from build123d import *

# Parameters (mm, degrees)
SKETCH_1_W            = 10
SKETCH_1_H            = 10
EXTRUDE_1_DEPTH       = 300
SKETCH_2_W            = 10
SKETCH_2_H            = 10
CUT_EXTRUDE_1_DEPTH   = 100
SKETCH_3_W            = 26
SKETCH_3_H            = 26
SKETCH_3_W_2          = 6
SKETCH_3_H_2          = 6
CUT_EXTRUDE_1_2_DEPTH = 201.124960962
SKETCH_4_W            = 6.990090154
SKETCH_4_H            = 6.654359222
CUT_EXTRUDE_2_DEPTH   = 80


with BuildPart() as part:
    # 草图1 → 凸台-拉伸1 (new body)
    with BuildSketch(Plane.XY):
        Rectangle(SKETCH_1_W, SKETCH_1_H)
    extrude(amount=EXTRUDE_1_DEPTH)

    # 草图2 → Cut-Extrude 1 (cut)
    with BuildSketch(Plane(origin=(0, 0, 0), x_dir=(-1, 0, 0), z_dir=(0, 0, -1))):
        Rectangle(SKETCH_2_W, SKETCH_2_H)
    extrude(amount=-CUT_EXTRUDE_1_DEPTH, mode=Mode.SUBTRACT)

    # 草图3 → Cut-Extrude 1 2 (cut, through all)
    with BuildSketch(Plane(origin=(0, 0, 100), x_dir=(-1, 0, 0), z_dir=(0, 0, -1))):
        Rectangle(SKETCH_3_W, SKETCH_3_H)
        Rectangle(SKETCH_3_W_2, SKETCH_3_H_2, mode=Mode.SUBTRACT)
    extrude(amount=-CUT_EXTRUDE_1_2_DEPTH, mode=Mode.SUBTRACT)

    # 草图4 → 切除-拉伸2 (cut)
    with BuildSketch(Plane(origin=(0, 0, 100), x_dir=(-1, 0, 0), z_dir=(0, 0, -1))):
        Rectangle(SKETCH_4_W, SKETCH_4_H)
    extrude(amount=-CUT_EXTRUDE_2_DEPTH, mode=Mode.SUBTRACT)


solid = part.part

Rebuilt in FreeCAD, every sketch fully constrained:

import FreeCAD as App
import Part
import Sketcher

V = App.Vector

doc = App.newDocument("Part")
body = doc.addObject("PartDesign::Body", "Body")

# Sketch on XY plane
sketch1 = body.newObject("Sketcher::SketchObject", "Sketch")
sketch1.AttachmentSupport = (doc.getObject("XY_Plane"), [""])
sketch1.MapMode = "FlatFace"
sketch1.addGeometry([
    Part.LineSegment(V(-5, 5, 0), V(-5, -5, 0)),
    Part.LineSegment(V(-5, -5, 0), V(5, -5, 0)),
    Part.LineSegment(V(5, -5, 0), V(5, 5, 0)),
    Part.LineSegment(V(5, 5, 0), V(-5, 5, 0)),
], False)
sketch1.addConstraint([
    Sketcher.Constraint("Coincident", 0, 2, 1, 1),
    Sketcher.Constraint("Coincident", 1, 2, 2, 1),
    Sketcher.Constraint("Coincident", 2, 2, 3, 1),
    Sketcher.Constraint("Coincident", 3, 2, 0, 1),
    Sketcher.Constraint("Vertical", 0),
    Sketcher.Constraint("Horizontal", 1),
    Sketcher.Constraint("Vertical", 2),
    Sketcher.Constraint("Horizontal", 3),
    Sketcher.Constraint("Symmetric", 0, 2, 2, 2, -1, 1),
    Sketcher.Constraint("Equal", 3, 0),
    Sketcher.Constraint("DistanceX", 1, 1, 1, 2, 10.0),
])
pad1 = body.newObject("PartDesign::Pad", "Pad")
pad1.Profile = sketch1
pad1.Length = 300

# Sketch on XY plane
sketch2 = body.newObject("Sketcher::SketchObject", "Sketch001")
sketch2.AttachmentSupport = (doc.getObject("XY_Plane"), [""])
sketch2.MapMode = "FlatFace"
sketch2.addGeometry([
    Part.LineSegment(V(5, 5, 0), V(5, -5, 0)),
    Part.LineSegment(V(5, -5, 0), V(-5, -5, 0)),
    Part.LineSegment(V(-5, -5, 0), V(-5, 5, 0)),
    Part.LineSegment(V(-5, 5, 0), V(5, 5, 0)),
], False)
sketch2.addConstraint([
    Sketcher.Constraint("Coincident", 0, 2, 1, 1),
    Sketcher.Constraint("Coincident", 1, 2, 2, 1),
    Sketcher.Constraint("Coincident", 2, 2, 3, 1),
    Sketcher.Constraint("Coincident", 3, 2, 0, 1),
    Sketcher.Constraint("Vertical", 0),
    Sketcher.Constraint("Horizontal", 1),
    Sketcher.Constraint("Vertical", 2),
    Sketcher.Constraint("Horizontal", 3),
    Sketcher.Constraint("Symmetric", 0, 2, 2, 2, -1, 1),
    Sketcher.Constraint("Equal", 3, 0),
    Sketcher.Constraint("DistanceX", 1, 2, 1, 1, 10.0),
])
pocket1 = body.newObject("PartDesign::Pocket", "Pocket")
pocket1.Profile = sketch2
pocket1.Length = 100
pocket1.Reversed = True

# Sketch on XY plane
sketch3 = body.newObject("Sketcher::SketchObject", "Sketch002")
sketch3.AttachmentSupport = (doc.getObject("XY_Plane"), [""])
sketch3.MapMode = "FlatFace"
sketch3.AttachmentOffset = App.Placement(V(0, 0, 100), App.Rotation())
sketch3.addGeometry([
    Part.LineSegment(V(13, 13, 0), V(13, -13, 0)),  # 0
    Part.LineSegment(V(13, -13, 0), V(-13, -13, 0)),  # 1
    Part.LineSegment(V(-13, -13, 0), V(-13, 13, 0)),  # 2
    Part.LineSegment(V(-13, 13, 0), V(13, 13, 0)),  # 3
    Part.LineSegment(V(-3, -3, 0), V(3, -3, 0)),  # 4
    Part.LineSegment(V(3, -3, 0), V(3, 3, 0)),  # 5
    Part.LineSegment(V(3, 3, 0), V(-3, 3, 0)),  # 6
    Part.LineSegment(V(-3, 3, 0), V(-3, -3, 0)),  # 7
], False)
sketch3.addConstraint([
    Sketcher.Constraint("Coincident", 0, 2, 1, 1),
    Sketcher.Constraint("Coincident", 1, 2, 2, 1),
    Sketcher.Constraint("Coincident", 2, 2, 3, 1),
    Sketcher.Constraint("Coincident", 3, 2, 0, 1),
    Sketcher.Constraint("Coincident", 4, 2, 5, 1),
    Sketcher.Constraint("Coincident", 5, 2, 6, 1),
    Sketcher.Constraint("Coincident", 6, 2, 7, 1),
    Sketcher.Constraint("Coincident", 7, 2, 4, 1),
    Sketcher.Constraint("Vertical", 0),
    Sketcher.Constraint("Horizontal", 1),
    Sketcher.Constraint("Vertical", 2),
    Sketcher.Constraint("Horizontal", 3),
    Sketcher.Constraint("Horizontal", 4),
    Sketcher.Constraint("Vertical", 5),
    Sketcher.Constraint("Horizontal", 6),
    Sketcher.Constraint("Vertical", 7),
    Sketcher.Constraint("Symmetric", 0, 2, 2, 2, -1, 1),
    Sketcher.Constraint("Symmetric", 4, 2, 6, 2, -1, 1),
    Sketcher.Constraint("Equal", 3, 0),
    Sketcher.Constraint("Equal", 6, 5),
    Sketcher.Constraint("DistanceX", 1, 2, 1, 1, 26.0),
    Sketcher.Constraint("DistanceX", 4, 1, 4, 2, 6.0),
])
pocket2 = body.newObject("PartDesign::Pocket", "Pocket001")
pocket2.Profile = sketch3
pocket2.Type = "ThroughAll"
pocket2.Reversed = True

# Sketch on XY plane
sketch4 = body.newObject("Sketcher::SketchObject", "Sketch003")
sketch4.AttachmentSupport = (doc.getObject("XY_Plane"), [""])
sketch4.MapMode = "FlatFace"
sketch4.AttachmentOffset = App.Placement(V(0, 0, 100), App.Rotation())
sketch4.addGeometry([
    Part.LineSegment(V(3, 3, 0), V(3, -3, 0)),
    Part.LineSegment(V(3, -3, 0), V(-3, -3, 0)),
    Part.LineSegment(V(-3, -3, 0), V(-3, 3, 0)),
    Part.LineSegment(V(-3, 3, 0), V(3, 3, 0)),
], False)
sketch4.addConstraint([
    Sketcher.Constraint("Coincident", 0, 2, 1, 1),
    Sketcher.Constraint("Coincident", 1, 2, 2, 1),
    Sketcher.Constraint("Coincident", 2, 2, 3, 1),
    Sketcher.Constraint("Coincident", 3, 2, 0, 1),
    Sketcher.Constraint("Vertical", 0),
    Sketcher.Constraint("Horizontal", 1),
    Sketcher.Constraint("Vertical", 2),
    Sketcher.Constraint("Horizontal", 3),
    Sketcher.Constraint("Symmetric", 0, 2, 2, 2, -1, 1),
    Sketcher.Constraint("DistanceX", 1, 2, 1, 1, 6.99009),
    Sketcher.Constraint("DistanceY", 0, 2, 0, 1, 6.654359),
])
pocket3 = body.newObject("PartDesign::Pocket", "Pocket002")
pocket3.Profile = sketch4
pocket3.Length = 80
pocket3.Reversed = True

doc.recompute()
